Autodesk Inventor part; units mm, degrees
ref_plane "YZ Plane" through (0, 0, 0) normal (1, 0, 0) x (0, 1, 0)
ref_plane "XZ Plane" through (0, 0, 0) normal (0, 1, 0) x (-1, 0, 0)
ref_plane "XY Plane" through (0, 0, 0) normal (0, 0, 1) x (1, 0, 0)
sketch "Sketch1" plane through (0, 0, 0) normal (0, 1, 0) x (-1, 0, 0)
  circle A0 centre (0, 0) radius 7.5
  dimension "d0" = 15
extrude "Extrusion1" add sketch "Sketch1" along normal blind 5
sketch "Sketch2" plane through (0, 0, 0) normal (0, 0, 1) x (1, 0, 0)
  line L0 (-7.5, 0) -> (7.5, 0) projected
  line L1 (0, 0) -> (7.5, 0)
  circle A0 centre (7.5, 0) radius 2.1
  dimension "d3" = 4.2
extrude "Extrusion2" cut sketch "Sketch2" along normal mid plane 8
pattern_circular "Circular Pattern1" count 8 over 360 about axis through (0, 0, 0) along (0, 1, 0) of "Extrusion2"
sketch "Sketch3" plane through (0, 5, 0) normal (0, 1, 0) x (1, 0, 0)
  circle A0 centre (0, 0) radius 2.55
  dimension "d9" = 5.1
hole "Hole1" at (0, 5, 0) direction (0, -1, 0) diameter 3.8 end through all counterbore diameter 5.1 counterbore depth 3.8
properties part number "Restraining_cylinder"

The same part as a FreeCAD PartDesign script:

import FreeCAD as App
import Part
import Sketcher

V = App.Vector

doc = App.newDocument("Part")
body = doc.addObject("PartDesign::Body", "Body")

sketch1 = body.newObject("Sketcher::SketchObject", "Sketch")
sketch1.AttachmentSupport = (doc.getObject("XZ_Plane"), [""])
sketch1.MapMode = "FlatFace"
sketch1.addGeometry(Part.Circle(V(0, 0, 0), V(0, 0, 1), 8), False)
sketch1.addConstraint([
    Sketcher.Constraint("Coincident", 0, 3, -1, 1),
    Sketcher.Constraint("Diameter", 0, 15.0),
])
pad1 = body.newObject("PartDesign::Pad", "Pad")
pad1.Profile = sketch1
pad1.Length = 5
pad1.Reversed = True

sketch2 = body.newObject("Sketcher::SketchObject", "Sketch001")
sketch2.AttachmentSupport = (doc.getObject("XY_Plane"), [""])
sketch2.MapMode = "FlatFace"
sketch2.addGeometry(Part.Circle(V(7.5, 0, 0), V(0, 0, 1), 2.1), False)
sketch2.addConstraint([
    Sketcher.Constraint("PointOnObject", 0, 3, -1),
    Sketcher.Constraint("Diameter", 0, 4.2),
    Sketcher.Constraint("DistanceX", -1, 1, 0, 3, 7.5),
])
pocket1 = body.newObject("PartDesign::Pocket", "Pocket")
pocket1.Profile = sketch2
pocket1.Length = 8
pocket1.Midplane = True
doc.recompute()

polarpattern = body.newObject("PartDesign::PolarPattern", "PolarPattern")
polarpattern.Originals = [pocket1]
polarpattern.Axis = (doc.getObject("Y_Axis"), [""])
polarpattern.Angle = 360
polarpattern.Occurrences = 8
body.Tip = polarpattern

sketch3 = body.newObject("Sketcher::SketchObject", "Sketch002")
sketch3.AttachmentSupport = (doc.getObject("XZ_Plane"), [""])
sketch3.MapMode = "FlatFace"
sketch3.AttachmentOffset = App.Placement(V(0, 0, -5), App.Rotation())
sketch3.addGeometry(Part.Circle(V(0, 0, 0), V(0, 0, 1), 1.9), False)
sketch3.addConstraint([
    Sketcher.Constraint("Coincident", 0, 3, -1, 1),
    Sketcher.Constraint("Diameter", 0, 3.8),
])
doc.recompute()
hole = body.newObject("PartDesign::Hole", "Hole")
hole.Profile = sketch3
hole.ThreadType = "None"
hole.Diameter = 3.8
hole.DepthType = "ThroughAll"
hole.HoleCutType = "Counterbore"
hole.HoleCutDiameter = 5.1
hole.HoleCutDepth = 3.8
hole.Reversed = True

doc.recompute()
